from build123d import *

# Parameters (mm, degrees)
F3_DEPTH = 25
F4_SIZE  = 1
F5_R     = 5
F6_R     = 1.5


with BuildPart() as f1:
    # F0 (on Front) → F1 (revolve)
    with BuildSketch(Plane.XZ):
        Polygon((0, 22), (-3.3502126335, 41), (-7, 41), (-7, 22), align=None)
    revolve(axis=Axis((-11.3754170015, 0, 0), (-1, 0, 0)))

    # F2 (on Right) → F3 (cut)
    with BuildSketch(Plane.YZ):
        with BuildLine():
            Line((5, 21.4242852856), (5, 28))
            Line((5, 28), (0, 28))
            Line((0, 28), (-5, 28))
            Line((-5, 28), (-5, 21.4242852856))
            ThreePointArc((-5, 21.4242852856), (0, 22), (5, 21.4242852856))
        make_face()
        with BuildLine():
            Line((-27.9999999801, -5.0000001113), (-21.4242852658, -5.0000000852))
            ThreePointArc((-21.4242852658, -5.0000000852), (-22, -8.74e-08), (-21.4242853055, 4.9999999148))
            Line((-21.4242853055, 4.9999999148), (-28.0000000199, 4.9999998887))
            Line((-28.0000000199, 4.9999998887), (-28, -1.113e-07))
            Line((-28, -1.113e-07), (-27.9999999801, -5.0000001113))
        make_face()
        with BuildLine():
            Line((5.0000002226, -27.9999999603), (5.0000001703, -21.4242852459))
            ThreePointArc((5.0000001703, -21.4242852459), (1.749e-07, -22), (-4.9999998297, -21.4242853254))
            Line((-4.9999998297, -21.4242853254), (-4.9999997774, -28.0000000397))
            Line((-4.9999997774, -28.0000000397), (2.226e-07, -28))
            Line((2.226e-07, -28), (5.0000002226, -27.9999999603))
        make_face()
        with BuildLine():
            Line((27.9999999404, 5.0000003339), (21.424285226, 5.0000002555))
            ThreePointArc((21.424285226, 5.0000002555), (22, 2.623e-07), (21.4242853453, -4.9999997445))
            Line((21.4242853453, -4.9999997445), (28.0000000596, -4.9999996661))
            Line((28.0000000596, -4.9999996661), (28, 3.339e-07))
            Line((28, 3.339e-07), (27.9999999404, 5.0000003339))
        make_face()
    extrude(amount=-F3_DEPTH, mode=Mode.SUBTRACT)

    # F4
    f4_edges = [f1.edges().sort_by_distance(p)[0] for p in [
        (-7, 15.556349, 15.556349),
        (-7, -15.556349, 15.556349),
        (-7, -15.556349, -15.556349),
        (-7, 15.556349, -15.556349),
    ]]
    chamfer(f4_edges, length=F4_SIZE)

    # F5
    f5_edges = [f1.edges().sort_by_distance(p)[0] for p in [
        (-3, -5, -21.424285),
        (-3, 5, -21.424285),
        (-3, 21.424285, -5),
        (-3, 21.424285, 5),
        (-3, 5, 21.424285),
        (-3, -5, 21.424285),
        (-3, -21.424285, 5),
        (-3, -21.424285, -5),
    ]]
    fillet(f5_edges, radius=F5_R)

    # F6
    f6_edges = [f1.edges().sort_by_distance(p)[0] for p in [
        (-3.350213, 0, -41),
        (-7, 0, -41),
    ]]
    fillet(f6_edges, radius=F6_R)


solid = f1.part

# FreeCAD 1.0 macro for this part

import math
import FreeCAD as App
import Part
import Sketcher
Q = App.Units.Quantity


def edges_at(feature, points):
    """Names of the edges that pass closest to the given points."""
    edges = feature.Shape.Edges
    near = lambda p: min(range(len(edges)), key=lambda i: edges[i].distToShape(Part.Vertex(*p))[0])
    return sorted({f"Edge{near(p) + 1}" for p in points})

doc = App.newDocument("Part")
body = doc.addObject("PartDesign::Body", "Body")

sketch1 = body.newObject("Sketcher::SketchObject", "Sketch")
sketch1.AttachmentSupport = (doc.getObject("XZ_Plane"), [""])
sketch1.MapMode = "FlatFace"
sketch1.addGeometry(Part.LineSegment(App.Vector(0, 22, 0), App.Vector(-3.350213, 41, 0)), False)
sketch1.addGeometry(Part.LineSegment(App.Vector(-3.350213, 41, 0), App.Vector(-7, 41, 0)), False)
sketch1.addGeometry(Part.LineSegment(App.Vector(-7, 41, 0), App.Vector(-7, 22, 0)), False)
sketch1.addGeometry(Part.LineSegment(App.Vector(-7, 22, 0), App.Vector(0, 22, 0)), False)
sketch1.addConstraint(Sketcher.Constraint("Coincident", 0, 2, 1, 1))
sketch1.addConstraint(Sketcher.Constraint("Coincident", 1, 2, 2, 1))
sketch1.addConstraint(Sketcher.Constraint("Coincident", 2, 2, 3, 1))
sketch1.addConstraint(Sketcher.Constraint("Coincident", 3, 2, 0, 1))
sketch1.addConstraint(Sketcher.Constraint("Horizontal", 1))
sketch1.addConstraint(Sketcher.Constraint("Vertical", 2))
sketch1.addConstraint(Sketcher.Constraint("Horizontal", 3))
sketch1.addConstraint(Sketcher.Constraint("PointOnObject", 3, 2, -2))
sketch1.addConstraint(Sketcher.Constraint("DistanceX", 3, 1, 3, 2, Q("7 mm")))
sketch1.addConstraint(Sketcher.Constraint("DistanceY", 2, 2, 2, 1, Q("19 mm")))
sketch1.addConstraint(Sketcher.Constraint("Angle", 0, Q("100 deg")))
sketch1.addConstraint(Sketcher.Constraint("DistanceY", -1, 1, 0, 2, Q("41 mm")))
revolution = body.newObject("PartDesign::Revolution", "Revolution")
revolution.Profile = sketch1
revolution.ReferenceAxis = (sketch1, ["H_Axis"])
revolution.Angle = 360

sketch2 = body.newObject("Sketcher::SketchObject", "Sketch001")
sketch2.AttachmentSupport = (doc.getObject("YZ_Plane"), [""])
sketch2.MapMode = "FlatFace"
sketch2.addGeometry(Part.LineSegment(App.Vector(5, 21.424285, 0), App.Vector(5, 28, 0)), False)
sketch2.addGeometry(Part.LineSegment(App.Vector(5, 28, 0), App.Vector(-5, 28, 0)), False)
sketch2.addGeometry(Part.LineSegment(App.Vector(-5, 28, 0), App.Vector(-5, 21.424285, 0)), False)
sketch2.addGeometry(Part.ArcOfCircle(Part.Circle(App.Vector(0, 0, 0), App.Vector(0, 0, 1), 22), math.radians(76.863441), math.radians(103.136559)), False)
sketch2.addGeometry(Part.LineSegment(App.Vector(-28, -5, 0), App.Vector(-21.424285, -5, 0)), False)
sketch2.addGeometry(Part.ArcOfCircle(Part.Circle(App.Vector(0, 0, 0), App.Vector(0, 0, 1), 22), math.radians(166.863441), math.radians(193.136559)), False)
sketch2.addGeometry(Part.LineSegment(App.Vector(-21.424285, 5, 0), App.Vector(-28, 5, 0)), False)
sketch2.addGeometry(Part.LineSegment(App.Vector(-28, 5, 0), App.Vector(-28, -5, 0)), False)
sketch2.addGeometry(Part.LineSegment(App.Vector(5, -28, 0), App.Vector(5, -21.424285, 0)), False)
sketch2.addGeometry(Part.ArcOfCircle(Part.Circle(App.Vector(0, 0, 0), App.Vector(0, 0, 1), 22), math.radians(-103.136558), math.radians(-76.863441)), False)
sketch2.addGeometry(Part.LineSegment(App.Vector(-5, -21.424285, 0), App.Vector(-5, -28, 0)), False)
sketch2.addGeometry(Part.LineSegment(App.Vector(-5, -28, 0), App.Vector(5, -28, 0)), False)
sketch2.addGeometry(Part.LineSegment(App.Vector(28, 5, 0), App.Vector(21.424285, 5, 0)), False)
sketch2.addGeometry(Part.ArcOfCircle(Part.Circle(App.Vector(0, 0, 0), App.Vector(0, 0, 1), 22), math.radians(-13.136558), math.radians(13.136559)), False)
sketch2.addGeometry(Part.LineSegment(App.Vector(21.424285, -5, 0), App.Vector(28, -5, 0)), False)
sketch2.addGeometry(Part.LineSegment(App.Vector(28, -5, 0), App.Vector(28, 5, 0)), False)
sketch2.addConstraint(Sketcher.Constraint("Coincident", 0, 2, 1, 1))
sketch2.addConstraint(Sketcher.Constraint("Coincident", 1, 2, 2, 1))
sketch2.addConstraint(Sketcher.Constraint("Coincident", 2, 2, 3, 2))
sketch2.addConstraint(Sketcher.Constraint("Coincident", 3, 1, 0, 1))
sketch2.addConstraint(Sketcher.Constraint("Coincident", 4, 2, 5, 2))
sketch2.addConstraint(Sketcher.Constraint("Coincident", 5, 1, 6, 1))
sketch2.addConstraint(Sketcher.Constraint("Coincident", 6, 2, 7, 1))
sketch2.addConstraint(Sketcher.Constraint("Coincident", 7, 2, 4, 1))
sketch2.addConstraint(Sketcher.Constraint("Coincident", 8, 2, 9, 2))
sketch2.addConstraint(Sketcher.Constraint("Coincident", 9, 1, 10, 1))
sketch2.addConstraint(Sketcher.Constraint("Coincident", 10, 2, 11, 1))
sketch2.addConstraint(Sketcher.Constraint("Coincident", 11, 2, 8, 1))
sketch2.addConstraint(Sketcher.Constraint("Coincident", 12, 2, 13, 2))
sketch2.addConstraint(Sketcher.Constraint("Coincident", 13, 1, 14, 1))
sketch2.addConstraint(Sketcher.Constraint("Coincident", 14, 2, 15, 1))
sketch2.addConstraint(Sketcher.Constraint("Coincident", 15, 2, 12, 1))
sketch2.addConstraint(Sketcher.Constraint("Vertical", 0))
sketch2.addConstraint(Sketcher.Constraint("Horizontal", 1))
sketch2.addConstraint(Sketcher.Constraint("Vertical", 2))
sketch2.addConstraint(Sketcher.Constraint("Horizontal", 4))
sketch2.addConstraint(Sketcher.Constraint("Horizontal", 6))
sketch2.addConstraint(Sketcher.Constraint("Vertical", 7))
sketch2.addConstraint(Sketcher.Constraint("Vertical", 8))
sketch2.addConstraint(Sketcher.Constraint("Vertical", 10))
sketch2.addConstraint(Sketcher.Constraint("Horizontal", 11))
sketch2.addConstraint(Sketcher.Constraint("Horizontal", 12))
sketch2.addConstraint(Sketcher.Constraint("Horizontal", 14))
sketch2.addConstraint(Sketcher.Constraint("Vertical", 15))
sketch2.addConstraint(Sketcher.Constraint("Coincident", 3, 3, -1, 1))
sketch2.addConstraint(Sketcher.Constraint("Coincident", 5, 3, -1, 1))
sketch2.addConstraint(Sketcher.Constraint("Coincident", 9, 3, -1, 1))
sketch2.addConstraint(Sketcher.Constraint("Coincident", 13, 3, -1, 1))
sketch2.addConstraint(Sketcher.Constraint("Equal", 3, 5))
sketch2.addConstraint(Sketcher.Constraint("Equal", 5, 9))
sketch2.addConstraint(Sketcher.Constraint("Equal", 9, 13))
sketch2.addConstraint(Sketcher.Constraint("Symmetric", 0, 2, 10, 2, -1, 1))
sketch2.addConstraint(Sketcher.Constraint("Symmetric", 6, 2, 14, 2, -1, 1))
sketch2.addConstraint(Sketcher.Constraint("Horizontal", 2, 2, 3, 1))
sketch2.addConstraint(Sketcher.Constraint("Horizontal", 8, 2, 9, 1))
sketch2.addConstraint(Sketcher.Constraint("Horizontal", 6, 2, 12, 2))
sketch2.addConstraint(Sketcher.Constraint("Horizontal", 7, 2, 13, 1))
sketch2.addConstraint(Sketcher.Constraint("Equal", 14, 0))
sketch2.addConstraint(Sketcher.Constraint("Equal", 11, 7))
sketch2.addConstraint(Sketcher.Constraint("Radius", 3, Q("22 mm")))
sketch2.addConstraint(Sketcher.Constraint("DistanceX", 1, 2, 1, 1, Q("10 mm")))
sketch2.addConstraint(Sketcher.Constraint("DistanceY", -1, 1, 0, 2, Q("28 mm")))
pocket1 = body.newObject("PartDesign::Pocket", "Pocket")
pocket1.Profile = sketch2
pocket1.Length = 25
doc.recompute()

chamfer = body.newObject("PartDesign::Chamfer", "Chamfer")
chamfer.Base = (pocket1, edges_at(pocket1, [
    (-7, 15.556, 15.556),
    (-7, -15.556, 15.556),
    (-7, -15.556, -15.556),
    (-7, 15.556, -15.556),
]))
chamfer.Size = 1
doc.recompute()

fillet = body.newObject("PartDesign::Fillet", "Fillet")
fillet.Base = (chamfer, edges_at(chamfer, [
    (-3, -5, -21.424),
    (-3, 5, -21.424),
    (-3, 21.424, -5),
    (-3, 21.424, 5),
    (-3, 5, 21.424),
    (-3, -5, 21.424),
    (-3, -21.424, 5),
    (-3, -21.424, -5),
]))
fillet.Radius = 5
doc.recompute()

fillet2 = body.newObject("PartDesign::Fillet", "Fillet001")
fillet2.Base = (fillet, edges_at(fillet, [(-3.35, 0, -41), (-7, 0, -41)]))
fillet2.Radius = 1.5

doc.recompute()
